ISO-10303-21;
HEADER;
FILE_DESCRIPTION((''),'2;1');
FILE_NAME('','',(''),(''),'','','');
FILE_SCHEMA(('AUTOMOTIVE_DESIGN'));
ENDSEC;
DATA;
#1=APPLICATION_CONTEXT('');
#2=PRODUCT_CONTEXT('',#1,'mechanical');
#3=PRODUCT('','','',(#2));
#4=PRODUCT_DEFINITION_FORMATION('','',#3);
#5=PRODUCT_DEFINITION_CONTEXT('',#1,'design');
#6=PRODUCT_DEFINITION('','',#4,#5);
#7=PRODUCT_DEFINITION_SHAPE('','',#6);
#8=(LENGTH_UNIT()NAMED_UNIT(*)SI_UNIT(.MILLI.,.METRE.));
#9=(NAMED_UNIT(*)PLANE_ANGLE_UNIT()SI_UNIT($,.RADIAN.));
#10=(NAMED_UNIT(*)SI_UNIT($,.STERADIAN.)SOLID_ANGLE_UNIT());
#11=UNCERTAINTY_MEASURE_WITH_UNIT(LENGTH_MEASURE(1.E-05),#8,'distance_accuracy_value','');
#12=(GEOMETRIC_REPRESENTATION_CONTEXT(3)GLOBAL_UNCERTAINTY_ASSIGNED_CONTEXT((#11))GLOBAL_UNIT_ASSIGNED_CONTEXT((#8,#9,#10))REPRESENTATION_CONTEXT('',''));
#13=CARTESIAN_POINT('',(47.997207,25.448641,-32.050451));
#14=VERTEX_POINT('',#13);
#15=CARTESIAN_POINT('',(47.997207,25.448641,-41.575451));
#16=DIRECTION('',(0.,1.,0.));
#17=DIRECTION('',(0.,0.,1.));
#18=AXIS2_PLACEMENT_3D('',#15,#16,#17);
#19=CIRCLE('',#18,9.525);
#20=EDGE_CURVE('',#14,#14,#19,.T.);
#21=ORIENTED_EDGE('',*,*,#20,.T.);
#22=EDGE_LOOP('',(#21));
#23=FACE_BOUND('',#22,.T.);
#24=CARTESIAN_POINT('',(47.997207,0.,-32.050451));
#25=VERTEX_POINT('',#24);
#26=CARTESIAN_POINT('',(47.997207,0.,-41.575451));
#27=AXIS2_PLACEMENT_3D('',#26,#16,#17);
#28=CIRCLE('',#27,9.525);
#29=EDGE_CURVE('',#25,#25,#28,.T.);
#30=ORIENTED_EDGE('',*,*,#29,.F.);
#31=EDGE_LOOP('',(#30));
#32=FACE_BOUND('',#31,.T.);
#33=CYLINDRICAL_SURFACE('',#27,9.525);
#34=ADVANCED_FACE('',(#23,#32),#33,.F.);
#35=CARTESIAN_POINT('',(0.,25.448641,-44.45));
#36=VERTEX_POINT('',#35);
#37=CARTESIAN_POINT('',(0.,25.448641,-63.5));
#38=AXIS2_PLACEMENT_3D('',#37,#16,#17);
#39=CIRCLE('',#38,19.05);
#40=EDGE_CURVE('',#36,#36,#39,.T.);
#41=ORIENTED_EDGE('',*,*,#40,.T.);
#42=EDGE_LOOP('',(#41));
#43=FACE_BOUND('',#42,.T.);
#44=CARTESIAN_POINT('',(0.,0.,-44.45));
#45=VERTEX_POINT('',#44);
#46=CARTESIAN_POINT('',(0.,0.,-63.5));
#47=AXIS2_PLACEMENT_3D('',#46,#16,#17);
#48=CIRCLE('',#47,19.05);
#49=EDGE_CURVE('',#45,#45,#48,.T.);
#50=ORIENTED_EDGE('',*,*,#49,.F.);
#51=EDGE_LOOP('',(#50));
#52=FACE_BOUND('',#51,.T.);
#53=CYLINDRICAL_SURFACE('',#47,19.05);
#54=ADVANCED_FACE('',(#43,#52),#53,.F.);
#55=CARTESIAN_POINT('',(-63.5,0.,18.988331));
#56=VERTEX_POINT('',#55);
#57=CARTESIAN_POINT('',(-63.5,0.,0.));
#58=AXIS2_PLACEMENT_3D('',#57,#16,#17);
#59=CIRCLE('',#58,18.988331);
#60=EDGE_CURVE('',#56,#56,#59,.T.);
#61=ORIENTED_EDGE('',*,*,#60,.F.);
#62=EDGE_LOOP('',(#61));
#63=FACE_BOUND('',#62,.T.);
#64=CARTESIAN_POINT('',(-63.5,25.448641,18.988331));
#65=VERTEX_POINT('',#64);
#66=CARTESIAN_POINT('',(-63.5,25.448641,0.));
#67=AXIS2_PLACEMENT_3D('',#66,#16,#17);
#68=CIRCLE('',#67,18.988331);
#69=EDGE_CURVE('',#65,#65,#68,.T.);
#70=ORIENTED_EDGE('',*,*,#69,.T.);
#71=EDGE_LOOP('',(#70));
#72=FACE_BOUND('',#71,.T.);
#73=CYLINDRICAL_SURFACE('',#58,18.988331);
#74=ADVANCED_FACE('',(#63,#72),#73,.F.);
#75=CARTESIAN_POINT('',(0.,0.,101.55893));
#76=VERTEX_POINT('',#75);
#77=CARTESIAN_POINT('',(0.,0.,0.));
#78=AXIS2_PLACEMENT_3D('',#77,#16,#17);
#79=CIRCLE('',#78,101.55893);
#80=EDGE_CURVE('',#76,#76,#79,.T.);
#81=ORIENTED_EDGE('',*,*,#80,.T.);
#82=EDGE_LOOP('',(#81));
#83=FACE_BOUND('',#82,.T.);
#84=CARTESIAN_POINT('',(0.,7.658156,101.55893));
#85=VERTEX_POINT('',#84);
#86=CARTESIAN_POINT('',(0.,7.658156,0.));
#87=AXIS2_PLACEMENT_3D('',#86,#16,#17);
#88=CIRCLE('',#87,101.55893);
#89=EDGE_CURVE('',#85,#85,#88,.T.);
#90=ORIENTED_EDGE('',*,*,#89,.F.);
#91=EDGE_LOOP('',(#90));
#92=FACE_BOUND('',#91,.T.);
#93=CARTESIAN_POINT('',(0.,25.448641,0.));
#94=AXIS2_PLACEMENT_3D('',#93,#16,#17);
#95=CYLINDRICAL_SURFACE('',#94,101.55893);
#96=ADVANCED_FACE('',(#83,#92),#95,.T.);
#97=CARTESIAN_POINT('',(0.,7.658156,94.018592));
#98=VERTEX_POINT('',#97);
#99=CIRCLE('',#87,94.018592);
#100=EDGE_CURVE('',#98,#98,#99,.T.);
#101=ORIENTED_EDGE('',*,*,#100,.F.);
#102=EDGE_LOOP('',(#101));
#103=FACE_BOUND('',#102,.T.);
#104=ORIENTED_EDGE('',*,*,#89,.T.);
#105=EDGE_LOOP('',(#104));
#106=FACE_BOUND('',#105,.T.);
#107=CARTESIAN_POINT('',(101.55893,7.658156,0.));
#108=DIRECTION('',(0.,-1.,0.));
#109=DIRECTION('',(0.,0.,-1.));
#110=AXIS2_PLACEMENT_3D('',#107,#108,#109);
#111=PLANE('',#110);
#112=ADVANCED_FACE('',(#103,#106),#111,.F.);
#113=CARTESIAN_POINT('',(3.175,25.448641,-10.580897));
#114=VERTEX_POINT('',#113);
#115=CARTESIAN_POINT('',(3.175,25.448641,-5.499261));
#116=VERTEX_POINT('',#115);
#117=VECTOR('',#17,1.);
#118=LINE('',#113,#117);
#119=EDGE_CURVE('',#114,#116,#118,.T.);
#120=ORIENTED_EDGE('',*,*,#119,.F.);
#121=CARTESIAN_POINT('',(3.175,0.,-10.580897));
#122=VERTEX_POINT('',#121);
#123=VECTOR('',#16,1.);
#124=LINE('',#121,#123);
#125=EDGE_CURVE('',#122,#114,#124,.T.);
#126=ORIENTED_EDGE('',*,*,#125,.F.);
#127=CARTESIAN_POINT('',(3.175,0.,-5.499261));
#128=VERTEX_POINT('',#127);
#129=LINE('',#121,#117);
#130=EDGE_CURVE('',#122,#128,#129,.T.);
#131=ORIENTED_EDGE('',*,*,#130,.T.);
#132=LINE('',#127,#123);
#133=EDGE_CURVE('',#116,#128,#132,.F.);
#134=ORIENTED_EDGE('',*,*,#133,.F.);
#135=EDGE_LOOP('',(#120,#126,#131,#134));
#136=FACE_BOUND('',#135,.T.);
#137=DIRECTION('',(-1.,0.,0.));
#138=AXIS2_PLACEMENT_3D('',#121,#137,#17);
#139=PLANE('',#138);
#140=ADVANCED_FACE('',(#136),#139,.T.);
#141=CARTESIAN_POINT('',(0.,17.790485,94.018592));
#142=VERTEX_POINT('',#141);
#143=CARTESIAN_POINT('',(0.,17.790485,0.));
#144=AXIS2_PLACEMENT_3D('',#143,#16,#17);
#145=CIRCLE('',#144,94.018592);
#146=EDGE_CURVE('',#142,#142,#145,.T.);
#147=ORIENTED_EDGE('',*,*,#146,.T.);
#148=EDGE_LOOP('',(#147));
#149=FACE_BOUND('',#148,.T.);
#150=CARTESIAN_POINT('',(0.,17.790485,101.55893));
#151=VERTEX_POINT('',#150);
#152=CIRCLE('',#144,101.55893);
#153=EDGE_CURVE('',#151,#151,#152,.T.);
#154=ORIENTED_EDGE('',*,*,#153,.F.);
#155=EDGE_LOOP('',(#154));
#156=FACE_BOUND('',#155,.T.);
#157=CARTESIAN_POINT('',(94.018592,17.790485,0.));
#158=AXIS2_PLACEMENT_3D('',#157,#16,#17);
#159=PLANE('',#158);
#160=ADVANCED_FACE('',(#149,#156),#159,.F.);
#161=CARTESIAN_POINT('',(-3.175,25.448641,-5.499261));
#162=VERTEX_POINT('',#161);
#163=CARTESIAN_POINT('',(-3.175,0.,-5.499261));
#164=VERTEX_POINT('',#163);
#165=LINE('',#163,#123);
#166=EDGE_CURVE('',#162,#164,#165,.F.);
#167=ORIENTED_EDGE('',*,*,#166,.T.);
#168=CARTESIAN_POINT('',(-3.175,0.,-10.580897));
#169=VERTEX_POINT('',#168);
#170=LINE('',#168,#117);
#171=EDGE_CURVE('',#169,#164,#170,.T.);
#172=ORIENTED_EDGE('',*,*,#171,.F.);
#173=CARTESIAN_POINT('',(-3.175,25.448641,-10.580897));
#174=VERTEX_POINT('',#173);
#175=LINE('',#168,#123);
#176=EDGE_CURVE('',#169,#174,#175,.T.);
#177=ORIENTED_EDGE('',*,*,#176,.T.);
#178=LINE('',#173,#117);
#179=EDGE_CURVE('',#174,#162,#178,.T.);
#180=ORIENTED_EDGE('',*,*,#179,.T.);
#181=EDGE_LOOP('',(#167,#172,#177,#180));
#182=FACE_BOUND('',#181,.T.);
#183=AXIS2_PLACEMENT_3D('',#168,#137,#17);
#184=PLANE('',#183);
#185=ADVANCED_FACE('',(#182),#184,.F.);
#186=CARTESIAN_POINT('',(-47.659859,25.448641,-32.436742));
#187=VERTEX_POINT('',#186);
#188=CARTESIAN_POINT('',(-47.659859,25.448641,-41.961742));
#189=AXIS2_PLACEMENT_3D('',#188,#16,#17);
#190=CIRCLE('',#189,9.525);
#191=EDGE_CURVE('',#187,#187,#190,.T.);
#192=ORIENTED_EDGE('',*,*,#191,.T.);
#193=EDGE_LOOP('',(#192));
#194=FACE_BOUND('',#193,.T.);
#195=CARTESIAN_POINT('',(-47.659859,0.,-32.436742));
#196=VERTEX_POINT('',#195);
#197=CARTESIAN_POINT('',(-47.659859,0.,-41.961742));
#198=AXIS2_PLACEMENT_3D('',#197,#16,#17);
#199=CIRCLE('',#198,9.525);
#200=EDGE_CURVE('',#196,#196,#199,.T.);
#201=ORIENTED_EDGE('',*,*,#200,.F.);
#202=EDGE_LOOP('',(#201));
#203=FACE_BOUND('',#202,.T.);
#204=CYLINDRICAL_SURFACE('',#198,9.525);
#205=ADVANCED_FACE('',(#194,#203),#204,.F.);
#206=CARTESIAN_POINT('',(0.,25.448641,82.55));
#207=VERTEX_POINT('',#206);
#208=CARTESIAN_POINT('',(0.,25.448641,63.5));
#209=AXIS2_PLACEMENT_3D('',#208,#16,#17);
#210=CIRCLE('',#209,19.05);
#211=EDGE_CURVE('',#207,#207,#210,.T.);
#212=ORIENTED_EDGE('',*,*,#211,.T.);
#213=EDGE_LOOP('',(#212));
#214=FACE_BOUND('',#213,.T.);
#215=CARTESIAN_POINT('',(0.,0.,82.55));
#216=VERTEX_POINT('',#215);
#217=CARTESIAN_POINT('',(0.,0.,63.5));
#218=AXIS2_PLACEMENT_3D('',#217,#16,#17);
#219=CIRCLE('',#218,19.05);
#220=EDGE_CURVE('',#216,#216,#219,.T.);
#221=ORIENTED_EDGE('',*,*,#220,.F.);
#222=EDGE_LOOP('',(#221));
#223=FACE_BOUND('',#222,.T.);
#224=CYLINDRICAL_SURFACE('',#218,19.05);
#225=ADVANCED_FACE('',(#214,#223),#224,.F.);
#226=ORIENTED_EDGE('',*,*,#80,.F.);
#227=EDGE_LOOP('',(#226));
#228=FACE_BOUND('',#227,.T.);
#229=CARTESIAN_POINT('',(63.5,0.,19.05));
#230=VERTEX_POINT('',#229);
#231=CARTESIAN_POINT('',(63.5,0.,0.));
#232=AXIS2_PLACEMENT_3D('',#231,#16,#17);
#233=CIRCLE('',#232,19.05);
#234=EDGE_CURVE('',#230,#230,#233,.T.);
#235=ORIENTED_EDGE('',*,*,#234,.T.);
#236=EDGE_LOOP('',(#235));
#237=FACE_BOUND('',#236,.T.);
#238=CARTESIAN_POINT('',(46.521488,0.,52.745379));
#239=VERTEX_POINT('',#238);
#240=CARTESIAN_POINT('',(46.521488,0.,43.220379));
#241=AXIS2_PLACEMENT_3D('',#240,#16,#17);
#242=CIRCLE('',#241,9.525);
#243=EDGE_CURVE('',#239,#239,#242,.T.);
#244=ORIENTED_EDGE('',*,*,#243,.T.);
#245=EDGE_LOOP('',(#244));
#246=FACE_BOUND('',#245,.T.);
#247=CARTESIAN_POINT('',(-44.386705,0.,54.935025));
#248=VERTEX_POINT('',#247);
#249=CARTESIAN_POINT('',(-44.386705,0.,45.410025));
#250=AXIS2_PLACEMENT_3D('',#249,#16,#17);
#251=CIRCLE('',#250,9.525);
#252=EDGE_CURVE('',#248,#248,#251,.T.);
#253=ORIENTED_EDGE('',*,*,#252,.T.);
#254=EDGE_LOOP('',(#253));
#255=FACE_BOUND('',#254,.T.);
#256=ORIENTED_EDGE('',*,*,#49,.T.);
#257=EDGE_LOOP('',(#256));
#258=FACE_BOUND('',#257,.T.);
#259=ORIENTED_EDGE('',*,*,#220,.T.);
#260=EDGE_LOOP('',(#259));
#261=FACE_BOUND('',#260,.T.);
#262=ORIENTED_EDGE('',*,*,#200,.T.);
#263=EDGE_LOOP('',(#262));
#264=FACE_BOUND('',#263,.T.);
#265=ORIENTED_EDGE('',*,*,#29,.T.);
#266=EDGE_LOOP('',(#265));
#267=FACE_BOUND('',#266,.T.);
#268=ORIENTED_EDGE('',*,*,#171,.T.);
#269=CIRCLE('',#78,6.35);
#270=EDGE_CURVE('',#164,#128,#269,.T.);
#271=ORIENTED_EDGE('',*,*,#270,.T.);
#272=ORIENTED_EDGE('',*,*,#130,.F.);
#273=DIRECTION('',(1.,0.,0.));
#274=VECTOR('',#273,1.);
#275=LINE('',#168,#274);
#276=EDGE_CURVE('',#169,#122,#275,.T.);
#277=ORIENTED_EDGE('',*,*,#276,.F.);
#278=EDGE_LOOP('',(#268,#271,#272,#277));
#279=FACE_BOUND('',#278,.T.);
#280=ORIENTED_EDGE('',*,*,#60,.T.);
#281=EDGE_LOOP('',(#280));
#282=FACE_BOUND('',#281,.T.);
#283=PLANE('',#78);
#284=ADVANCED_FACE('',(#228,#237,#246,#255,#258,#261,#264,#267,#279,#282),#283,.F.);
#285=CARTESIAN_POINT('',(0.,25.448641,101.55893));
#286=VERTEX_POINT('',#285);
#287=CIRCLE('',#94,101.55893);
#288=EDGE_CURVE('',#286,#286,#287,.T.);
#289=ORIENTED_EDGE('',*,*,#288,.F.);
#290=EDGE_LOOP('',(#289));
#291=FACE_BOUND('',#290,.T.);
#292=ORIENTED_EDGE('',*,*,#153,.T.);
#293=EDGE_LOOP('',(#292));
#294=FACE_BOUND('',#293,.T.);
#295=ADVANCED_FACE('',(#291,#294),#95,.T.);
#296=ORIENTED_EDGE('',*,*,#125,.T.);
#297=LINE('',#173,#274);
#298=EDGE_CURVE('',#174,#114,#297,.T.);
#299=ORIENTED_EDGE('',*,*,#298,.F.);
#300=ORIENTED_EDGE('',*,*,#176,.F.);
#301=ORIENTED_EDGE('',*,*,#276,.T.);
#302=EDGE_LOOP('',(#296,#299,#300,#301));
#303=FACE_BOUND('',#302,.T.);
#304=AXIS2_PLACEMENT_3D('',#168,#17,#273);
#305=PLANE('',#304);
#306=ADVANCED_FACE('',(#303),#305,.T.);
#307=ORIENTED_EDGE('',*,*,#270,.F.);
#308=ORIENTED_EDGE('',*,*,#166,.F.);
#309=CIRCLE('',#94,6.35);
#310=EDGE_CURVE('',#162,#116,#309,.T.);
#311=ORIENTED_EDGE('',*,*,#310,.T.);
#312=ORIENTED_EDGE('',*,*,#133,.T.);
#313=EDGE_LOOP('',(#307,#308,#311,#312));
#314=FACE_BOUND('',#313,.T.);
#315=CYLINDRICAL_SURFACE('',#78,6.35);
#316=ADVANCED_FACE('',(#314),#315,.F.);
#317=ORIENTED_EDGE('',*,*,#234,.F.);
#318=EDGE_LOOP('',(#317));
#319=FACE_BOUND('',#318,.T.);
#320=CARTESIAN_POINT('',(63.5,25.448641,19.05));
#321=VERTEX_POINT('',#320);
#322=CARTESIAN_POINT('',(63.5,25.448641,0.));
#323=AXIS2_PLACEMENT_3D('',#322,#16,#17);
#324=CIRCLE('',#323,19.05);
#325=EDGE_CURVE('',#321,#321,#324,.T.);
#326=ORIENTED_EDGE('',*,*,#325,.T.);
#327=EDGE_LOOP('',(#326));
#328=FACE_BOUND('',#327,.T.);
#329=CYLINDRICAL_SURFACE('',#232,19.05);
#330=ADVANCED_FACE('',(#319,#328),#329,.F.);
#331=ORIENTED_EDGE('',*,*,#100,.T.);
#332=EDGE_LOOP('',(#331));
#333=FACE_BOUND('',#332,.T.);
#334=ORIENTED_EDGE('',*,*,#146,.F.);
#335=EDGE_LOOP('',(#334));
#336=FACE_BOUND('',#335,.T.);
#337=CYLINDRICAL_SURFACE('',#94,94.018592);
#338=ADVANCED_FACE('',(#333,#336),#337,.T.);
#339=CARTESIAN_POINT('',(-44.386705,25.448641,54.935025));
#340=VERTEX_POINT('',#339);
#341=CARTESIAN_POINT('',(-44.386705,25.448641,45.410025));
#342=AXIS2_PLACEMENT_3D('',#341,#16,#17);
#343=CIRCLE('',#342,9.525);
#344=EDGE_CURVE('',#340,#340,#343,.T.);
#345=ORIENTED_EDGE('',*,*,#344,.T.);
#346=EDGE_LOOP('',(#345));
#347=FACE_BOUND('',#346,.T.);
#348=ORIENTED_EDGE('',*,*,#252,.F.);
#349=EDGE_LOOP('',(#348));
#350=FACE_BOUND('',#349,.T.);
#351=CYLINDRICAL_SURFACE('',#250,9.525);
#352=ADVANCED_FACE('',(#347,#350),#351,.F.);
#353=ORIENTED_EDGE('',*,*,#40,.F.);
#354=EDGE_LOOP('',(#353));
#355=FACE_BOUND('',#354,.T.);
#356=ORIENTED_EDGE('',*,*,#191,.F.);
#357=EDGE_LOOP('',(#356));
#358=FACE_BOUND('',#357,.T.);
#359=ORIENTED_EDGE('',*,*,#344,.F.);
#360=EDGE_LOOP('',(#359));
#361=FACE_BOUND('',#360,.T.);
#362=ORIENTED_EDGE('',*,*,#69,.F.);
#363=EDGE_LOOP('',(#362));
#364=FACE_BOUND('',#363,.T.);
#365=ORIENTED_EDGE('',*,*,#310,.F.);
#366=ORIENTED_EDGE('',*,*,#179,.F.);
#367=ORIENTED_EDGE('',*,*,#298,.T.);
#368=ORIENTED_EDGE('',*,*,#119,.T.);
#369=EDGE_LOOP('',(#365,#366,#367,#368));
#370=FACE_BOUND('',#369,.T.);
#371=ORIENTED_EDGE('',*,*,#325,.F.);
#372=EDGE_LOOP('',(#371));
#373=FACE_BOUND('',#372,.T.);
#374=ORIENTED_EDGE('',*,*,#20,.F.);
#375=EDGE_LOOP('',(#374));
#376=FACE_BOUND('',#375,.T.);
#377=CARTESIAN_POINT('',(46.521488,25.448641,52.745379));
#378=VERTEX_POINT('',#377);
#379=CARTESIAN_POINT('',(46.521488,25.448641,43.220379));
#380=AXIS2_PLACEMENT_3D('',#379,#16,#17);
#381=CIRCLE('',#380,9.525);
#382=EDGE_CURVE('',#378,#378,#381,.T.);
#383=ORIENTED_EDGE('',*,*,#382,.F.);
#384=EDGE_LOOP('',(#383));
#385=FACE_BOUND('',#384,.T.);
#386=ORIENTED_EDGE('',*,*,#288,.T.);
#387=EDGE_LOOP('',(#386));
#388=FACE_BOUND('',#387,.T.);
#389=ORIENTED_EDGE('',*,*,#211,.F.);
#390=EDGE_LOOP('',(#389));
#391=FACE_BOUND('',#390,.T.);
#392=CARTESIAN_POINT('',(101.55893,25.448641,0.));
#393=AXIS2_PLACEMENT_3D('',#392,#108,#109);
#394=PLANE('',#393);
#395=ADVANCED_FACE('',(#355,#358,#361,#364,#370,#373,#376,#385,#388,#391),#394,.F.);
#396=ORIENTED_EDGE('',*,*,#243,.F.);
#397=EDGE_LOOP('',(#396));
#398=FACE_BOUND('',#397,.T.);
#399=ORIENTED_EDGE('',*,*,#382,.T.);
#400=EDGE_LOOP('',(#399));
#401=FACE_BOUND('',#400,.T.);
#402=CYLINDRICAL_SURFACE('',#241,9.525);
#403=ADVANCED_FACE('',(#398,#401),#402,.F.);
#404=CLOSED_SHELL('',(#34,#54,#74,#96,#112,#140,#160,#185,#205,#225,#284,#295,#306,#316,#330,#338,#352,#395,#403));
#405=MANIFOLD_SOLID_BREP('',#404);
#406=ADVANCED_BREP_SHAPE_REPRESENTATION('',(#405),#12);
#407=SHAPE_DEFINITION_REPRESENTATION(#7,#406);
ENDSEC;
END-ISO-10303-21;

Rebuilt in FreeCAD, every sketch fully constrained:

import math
import FreeCAD as App
import Part
import Sketcher
from FreeCAD import Vector
Q = App.Units.Quantity

doc = App.newDocument("Part")
params = doc.addObject("Spreadsheet::Sheet", "Params")
for row, (alias, value) in enumerate([
    ("revolution_angle", "360 deg"),
    ("sketch2_diameter", "1.5 in"),
    ("sketch2_diameter2", "0.75 in"),
    ("sketch2_radius", "0.25 in"),
    ("sketch2_width", "0.25 in"),
], start=1):
    params.set(f"A{row}", alias)
    params.set(f"B{row}", "=" + value)
    params.setAlias(f"B{row}", alias)

body = doc.addObject("PartDesign::Body", "Body")

# Sketch on XY plane
sketch1 = doc.addObject("Sketcher::SketchObject", "Sketch")
body.addObject(sketch1)
sketch1.AttachmentSupport = (doc.XY_Plane, [""])
sketch1.MapMode = "FlatFace"
sketch1.addGeometry([
    Part.LineSegment(Vector(0, 0, 0), Vector(102, 0, 0)),  # 0
    Part.LineSegment(Vector(102, 0, 0), Vector(102, 8, 0)),  # 1
    Part.LineSegment(Vector(102, 8, 0), Vector(94, 8, 0)),  # 2
    Part.LineSegment(Vector(94, 8, 0), Vector(94, 18, 0)),  # 3
    Part.LineSegment(Vector(94, 18, 0), Vector(102, 18, 0)),  # 4
    Part.LineSegment(Vector(102, 18, 0), Vector(102, 25, 0)),  # 5
    Part.LineSegment(Vector(102, 25, 0), Vector(0, 25, 0)),  # 6
    Part.LineSegment(Vector(0, 25, 0), Vector(0, 0, 0)),  # 7
], False)
sketch1.addConstraint([
    Sketcher.Constraint("Coincident", 0, 2, 1, 1),
    Sketcher.Constraint("Coincident", 1, 2, 2, 1),
    Sketcher.Constraint("Coincident", 2, 2, 3, 1),
    Sketcher.Constraint("Coincident", 3, 2, 4, 1),
    Sketcher.Constraint("Coincident", 4, 2, 5, 1),
    Sketcher.Constraint("Coincident", 5, 2, 6, 1),
    Sketcher.Constraint("Coincident", 6, 2, 7, 1),
    Sketcher.Constraint("Coincident", 7, 2, 0, 1),
    Sketcher.Constraint("Horizontal", 0),
    Sketcher.Constraint("Vertical", 1),
    Sketcher.Constraint("Horizontal", 2),
    Sketcher.Constraint("Vertical", 3),
    Sketcher.Constraint("Horizontal", 4),
    Sketcher.Constraint("Vertical", 5),
    Sketcher.Constraint("Horizontal", 6),
    Sketcher.Constraint("Vertical", 7),
    Sketcher.Constraint("Coincident", 7, 2, -1, 1),
    Sketcher.Constraint("Vertical", 1, 2, 4, 2),
    Sketcher.Constraint("Equal", 1, 5),
    Sketcher.Constraint("DistanceX", 0, 1, 0, 2, 101.55893),
    Sketcher.Constraint("DistanceX", 2, 2, 2, 1, 7.540338),
    Sketcher.Constraint("DistanceY", 3, 1, 3, 2, 10.132329),
    Sketcher.Constraint("DistanceY", 7, 2, 7, 1, 25.448641),
])
revolution = doc.addObject("PartDesign::Revolution", "Revolution")
body.addObject(revolution)
revolution.Profile = sketch1
revolution.ReferenceAxis = (sketch1, ["V_Axis"])
revolution.setExpression("Angle", "Params.revolution_angle")

# Sketch on XZ plane
sketch2 = doc.addObject("Sketcher::SketchObject", "Sketch001")
body.addObject(sketch2)
sketch2.AttachmentSupport = (doc.XZ_Plane, [""])
sketch2.MapMode = "FlatFace"
sketch2.AttachmentOffset = App.Placement(Vector(0, 0, -25.448641), App.Rotation())
sketch2.addGeometry([
    Part.LineSegment(Vector(3, -11, 0), Vector(-3, -11, 0)),  # 0
    Part.LineSegment(Vector(-3, -11, 0), Vector(-3, -5, 0)),  # 1
    Part.ArcOfCircle(Part.Circle(Vector(0, 0, 0), Vector(0, 0, 1), 6), math.radians(-60), math.radians(240)),  # 2
    Part.LineSegment(Vector(3, -5, 0), Vector(3, -11, 0)),  # 3
    Part.Circle(Vector(64, 0, 0), Vector(0, 0, 1), 19),  # 4
    Part.Circle(Vector(48, -42, 0), Vector(0, 0, 1), 10),  # 5
    Part.Circle(Vector(47, 43, 0), Vector(0, 0, 1), 10),  # 6
    Part.Circle(Vector(0, -64, 0), Vector(0, 0, 1), 19),  # 7
    Part.Circle(Vector(0, 64, 0), Vector(0, 0, 1), 19),  # 8
    Part.Circle(Vector(-48, -42, 0), Vector(0, 0, 1), 10),  # 9
    Part.Circle(Vector(-44, 45, 0), Vector(0, 0, 1), 10),  # 10
    Part.Circle(Vector(-64, 0, 0), Vector(0, 0, 1), 19),  # 11
], False)
sketch2.addConstraint([
    Sketcher.Constraint("Coincident", 0, 2, 1, 1),
    Sketcher.Constraint("Coincident", 1, 2, 2, 2),
    Sketcher.Constraint("Coincident", 2, 1, 3, 1),
    Sketcher.Constraint("Coincident", 3, 2, 0, 1),
    Sketcher.Constraint("Horizontal", 0),
    Sketcher.Constraint("Vertical", 1),
    Sketcher.Constraint("Vertical", 3),
    Sketcher.Constraint("Coincident", 2, 3, -1, 1),
    Sketcher.Constraint("Equal", 5, 6),
    Sketcher.Constraint("Equal", 4, 7),
    Sketcher.Constraint("Equal", 7, 8),
    Sketcher.Constraint("Equal", 6, 9),
    Sketcher.Constraint("Equal", 9, 10),
    Sketcher.Constraint("Symmetric", 7, 3, 8, 3, -1, 1),
    Sketcher.Constraint("Symmetric", 4, 3, 11, 3, -1, 1),
    Sketcher.Constraint("PointOnObject", 4, 3, -1),
    Sketcher.Constraint("PointOnObject", 7, 3, -2),
    Sketcher.Constraint("Horizontal", 1, 2, 2, 1),
    Sketcher.Constraint("Diameter", 4, Q("1.5 in")),
    Sketcher.Constraint("Diameter", 5, Q("0.75 in")),
    Sketcher.Constraint("Radius", 2, Q("0.25 in")),
    Sketcher.Constraint("DistanceY", 7, 3, 8, 3, Q("5 in")),
    Sketcher.Constraint("DistanceX", 0, 2, 0, 1, Q("0.25 in")),
    Sketcher.Constraint("DistanceX", -1, 1, 4, 3, Q("2.5 in")),
    Sketcher.Constraint("Diameter", 11, 37.976661),
    Sketcher.Constraint("DistanceY", 1, 1, 1, 2, 5.081635),
    Sketcher.Constraint("DistanceY", 5, 3, -1, 1, 41.575451),
    Sketcher.Constraint("DistanceY", -1, 1, 6, 3, 43.220379),
    Sketcher.Constraint("DistanceX", 9, 3, -1, 1, 47.659859),
    Sketcher.Constraint("DistanceX", 6, 3, 5, 3, 1.47572),
    Sketcher.Constraint("DistanceY", 9, 3, 5, 3, 0.386292),
    Sketcher.Constraint("DistanceX", -1, 1, 5, 3, 47.997207),
    Sketcher.Constraint("DistanceX", 10, 3, -1, 1, 44.386705),
    Sketcher.Constraint("DistanceY", -1, 1, 10, 3, 45.410025),
])
sketch2.setExpression("Constraints[18]", "Params.sketch2_diameter")
sketch2.setExpression("Constraints[19]", "Params.sketch2_diameter2")
sketch2.setExpression("Constraints[20]", "Params.sketch2_radius")
sketch2.setExpression("Constraints[22]", "Params.sketch2_width")
pocket1 = doc.addObject("PartDesign::Pocket", "Pocket")
body.addObject(pocket1)
pocket1.Profile = sketch2
pocket1.Type = "ThroughAll"
pocket1.Reversed = True

doc.recompute()
